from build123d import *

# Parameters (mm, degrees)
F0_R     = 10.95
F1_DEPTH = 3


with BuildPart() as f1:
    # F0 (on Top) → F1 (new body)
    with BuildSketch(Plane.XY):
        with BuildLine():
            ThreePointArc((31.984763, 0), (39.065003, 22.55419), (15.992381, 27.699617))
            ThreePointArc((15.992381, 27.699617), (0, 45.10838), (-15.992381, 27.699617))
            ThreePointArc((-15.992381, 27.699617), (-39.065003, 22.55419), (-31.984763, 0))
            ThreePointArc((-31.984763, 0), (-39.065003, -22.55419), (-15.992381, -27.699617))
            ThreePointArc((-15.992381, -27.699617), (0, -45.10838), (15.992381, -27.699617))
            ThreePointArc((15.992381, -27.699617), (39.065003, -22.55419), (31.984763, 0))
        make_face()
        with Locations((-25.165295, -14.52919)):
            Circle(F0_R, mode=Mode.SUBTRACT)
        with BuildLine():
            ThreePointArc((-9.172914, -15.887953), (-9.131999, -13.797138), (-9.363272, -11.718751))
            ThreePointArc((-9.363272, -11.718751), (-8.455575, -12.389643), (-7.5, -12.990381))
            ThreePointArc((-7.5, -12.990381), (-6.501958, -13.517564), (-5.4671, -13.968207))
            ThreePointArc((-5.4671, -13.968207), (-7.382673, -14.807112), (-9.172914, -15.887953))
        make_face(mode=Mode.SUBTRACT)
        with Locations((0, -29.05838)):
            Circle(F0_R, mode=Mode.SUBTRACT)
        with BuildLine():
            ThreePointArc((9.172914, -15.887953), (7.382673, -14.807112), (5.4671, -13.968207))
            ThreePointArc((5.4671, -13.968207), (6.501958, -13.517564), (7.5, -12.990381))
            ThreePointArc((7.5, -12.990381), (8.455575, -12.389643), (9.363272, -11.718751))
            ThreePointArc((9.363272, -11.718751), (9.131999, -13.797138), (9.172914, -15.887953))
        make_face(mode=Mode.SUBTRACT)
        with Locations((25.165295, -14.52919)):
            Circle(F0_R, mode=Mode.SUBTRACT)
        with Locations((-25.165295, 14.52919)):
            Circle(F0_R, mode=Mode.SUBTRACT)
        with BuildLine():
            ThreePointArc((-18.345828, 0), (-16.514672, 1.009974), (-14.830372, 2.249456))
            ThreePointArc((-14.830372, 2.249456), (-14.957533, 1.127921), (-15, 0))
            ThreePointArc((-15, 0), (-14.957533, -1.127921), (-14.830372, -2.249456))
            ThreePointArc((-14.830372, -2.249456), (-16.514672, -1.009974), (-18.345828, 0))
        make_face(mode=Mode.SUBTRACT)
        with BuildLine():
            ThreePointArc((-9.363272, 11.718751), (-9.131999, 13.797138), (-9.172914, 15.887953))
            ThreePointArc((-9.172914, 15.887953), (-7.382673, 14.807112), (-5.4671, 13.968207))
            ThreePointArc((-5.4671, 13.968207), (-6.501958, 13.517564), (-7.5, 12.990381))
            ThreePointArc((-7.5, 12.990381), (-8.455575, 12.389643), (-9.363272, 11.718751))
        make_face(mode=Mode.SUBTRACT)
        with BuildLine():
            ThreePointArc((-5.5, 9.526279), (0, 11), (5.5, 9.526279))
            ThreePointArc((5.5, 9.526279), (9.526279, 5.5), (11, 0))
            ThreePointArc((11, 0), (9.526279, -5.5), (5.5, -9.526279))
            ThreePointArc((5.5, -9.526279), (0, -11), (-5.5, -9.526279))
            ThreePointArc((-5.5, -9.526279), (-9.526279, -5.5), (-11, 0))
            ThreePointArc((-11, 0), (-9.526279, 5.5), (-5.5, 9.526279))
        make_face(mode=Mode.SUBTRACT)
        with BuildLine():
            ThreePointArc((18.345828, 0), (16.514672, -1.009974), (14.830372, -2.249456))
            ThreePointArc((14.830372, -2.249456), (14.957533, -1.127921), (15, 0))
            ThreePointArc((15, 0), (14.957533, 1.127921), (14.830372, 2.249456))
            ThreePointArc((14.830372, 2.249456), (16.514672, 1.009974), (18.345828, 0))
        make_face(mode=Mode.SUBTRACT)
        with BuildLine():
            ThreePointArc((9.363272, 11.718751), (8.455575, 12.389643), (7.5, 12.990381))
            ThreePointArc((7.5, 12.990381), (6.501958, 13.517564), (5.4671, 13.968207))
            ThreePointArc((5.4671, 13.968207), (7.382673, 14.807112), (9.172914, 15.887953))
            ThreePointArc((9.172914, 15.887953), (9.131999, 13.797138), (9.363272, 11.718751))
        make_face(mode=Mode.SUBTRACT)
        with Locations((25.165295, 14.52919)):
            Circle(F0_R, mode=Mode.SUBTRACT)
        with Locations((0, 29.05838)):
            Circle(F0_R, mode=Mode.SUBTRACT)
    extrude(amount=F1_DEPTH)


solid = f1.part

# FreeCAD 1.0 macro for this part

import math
import FreeCAD as App
import Part
import Sketcher

V = App.Vector

doc = App.newDocument("Part")
body = doc.addObject("PartDesign::Body", "Body")

sketch1 = doc.addObject("Sketcher::SketchObject", "Sketch")
body.addObject(sketch1)
sketch1.AttachmentSupport = (doc.XY_Plane, [""])
sketch1.MapMode = "FlatFace"
sketch1.addGeometry(Part.ArcOfCircle(Part.Circle(V(25.2, 14.5, 0), V(0, 0, 1), 16.1), math.radians(-65), math.radians(125)), False)
sketch1.addGeometry(Part.ArcOfCircle(Part.Circle(V(0, 29.1, 0), V(0, 0, 1), 16), math.radians(-5), math.radians(185)), False)
sketch1.addGeometry(Part.ArcOfCircle(Part.Circle(V(-25.2, 14.5, 0), V(0, 0, 1), 16.1), math.radians(55), math.radians(245)), False)
sketch1.addGeometry(Part.ArcOfCircle(Part.Circle(V(-25.2, -14.5, 0), V(0, 0, 1), 16.1), math.radians(115), math.radians(305)), False)
sketch1.addGeometry(Part.ArcOfCircle(Part.Circle(V(0, -29.1, 0), V(0, 0, 1), 16), math.radians(175), math.radians(365)), False)
sketch1.addGeometry(Part.ArcOfCircle(Part.Circle(V(25.2, -14.5, 0), V(0, 0, 1), 16.1), math.radians(-125), math.radians(65)), False)
sketch1.addGeometry(Part.Circle(V(-25.2, -14.5, 0), V(0, 0, 1), 10.9), False)
sketch1.addGeometry(Part.ArcOfCircle(Part.Circle(V(0, -29.1, 0), V(0, 0, 1), 16.1), math.radians(109.92), math.radians(124.86)), False)
sketch1.addGeometry(Part.ArcOfCircle(Part.Circle(V(-25.2, -14.5, 0), V(0, 0, 1), 16.1), math.radians(-4.86), math.radians(10.08)), False)
sketch1.addGeometry(Part.ArcOfCircle(Part.Circle(V(0, 0, 0), V(0, 0, 1), 15), math.radians(-128.62), math.radians(-120)), False)
sketch1.addGeometry(Part.ArcOfCircle(Part.Circle(V(0, 0, 0), V(0, 0, 1), 15), math.radians(-120), math.radians(-111.38)), False)
sketch1.addGeometry(Part.Circle(V(0, -29.1, 0), V(0, 0, 1), 10.9), False)
sketch1.addGeometry(Part.ArcOfCircle(Part.Circle(V(25.2, -14.5, 0), V(0, 0, 1), 16.1), math.radians(169.92), math.radians(184.86)), False)
sketch1.addGeometry(Part.ArcOfCircle(Part.Circle(V(0, -29.1, 0), V(0, 0, 1), 16.1), math.radians(55.14), math.radians(70.08)), False)
sketch1.addGeometry(Part.ArcOfCircle(Part.Circle(V(0, 0, 0), V(0, 0, 1), 15), math.radians(-68.62), math.radians(-60)), False)
sketch1.addGeometry(Part.ArcOfCircle(Part.Circle(V(0, 0, 0), V(0, 0, 1), 15), math.radians(-60), math.radians(-51.38)), False)
sketch1.addGeometry(Part.Circle(V(25.2, -14.5, 0), V(0, 0, 1), 10.9), False)
sketch1.addGeometry(Part.Circle(V(-25.2, 14.5, 0), V(0, 0, 1), 10.9), False)
sketch1.addGeometry(Part.ArcOfCircle(Part.Circle(V(-25.2, -14.5, 0), V(0, 0, 1), 16.1), math.radians(49.92), math.radians(64.86)), False)
sketch1.addGeometry(Part.ArcOfCircle(Part.Circle(V(-25.2, 14.5, 0), V(0, 0, 1), 16.1), math.radians(-64.86), math.radians(-49.92)), False)
sketch1.addGeometry(Part.ArcOfCircle(Part.Circle(V(0, 0, 0), V(0, 0, 1), 15), math.radians(171.38), math.radians(180)), False)
sketch1.addGeometry(Part.ArcOfCircle(Part.Circle(V(0, 0, 0), V(0, 0, 1), 15), math.radians(180), math.radians(188.62)), False)
sketch1.addGeometry(Part.ArcOfCircle(Part.Circle(V(0, 0, 0), V(0, 0, 1), 15), math.radians(120), math.radians(128.62)), False)
sketch1.addGeometry(Part.ArcOfCircle(Part.Circle(V(-25.2, 14.5, 0), V(0, 0, 1), 16.1), math.radians(-10.08), math.radians(4.86)), False)
sketch1.addGeometry(Part.ArcOfCircle(Part.Circle(V(0, 29.1, 0), V(0, 0, 1), 16.1), math.radians(-124.86), math.radians(-109.92)), False)
sketch1.addGeometry(Part.ArcOfCircle(Part.Circle(V(0, 0, 0), V(0, 0, 1), 15), math.radians(111.38), math.radians(120)), False)
sketch1.addGeometry(Part.ArcOfCircle(Part.Circle(V(0, 0, 0), V(0, 0, 1), 11), math.radians(120), math.radians(180)), False)
sketch1.addGeometry(Part.ArcOfCircle(Part.Circle(V(0, 0, 0), V(0, 0, 1), 11), math.radians(60), math.radians(120)), False)
sketch1.addGeometry(Part.ArcOfCircle(Part.Circle(V(0, 0, 0), V(0, 0, 1), 11), math.radians(0), math.radians(60)), False)
sketch1.addGeometry(Part.ArcOfCircle(Part.Circle(V(0, 0, 0), V(0, 0, 1), 11), math.radians(-60), math.radians(0)), False)
sketch1.addGeometry(Part.ArcOfCircle(Part.Circle(V(0, 0, 0), V(0, 0, 1), 11), math.radians(-120), math.radians(-60)), False)
sketch1.addGeometry(Part.ArcOfCircle(Part.Circle(V(0, 0, 0), V(0, 0, 1), 11), math.radians(-180), math.radians(-120)), False)
sketch1.addGeometry(Part.ArcOfCircle(Part.Circle(V(25.2, 14.5, 0), V(0, 0, 1), 16.1), math.radians(-130.08), math.radians(-115.14)), False)
sketch1.addGeometry(Part.ArcOfCircle(Part.Circle(V(25.2, -14.5, 0), V(0, 0, 1), 16.1), math.radians(115.14), math.radians(130.08)), False)
sketch1.addGeometry(Part.ArcOfCircle(Part.Circle(V(0, 0, 0), V(0, 0, 1), 15), math.radians(-8.62), math.radians(0)), False)
sketch1.addGeometry(Part.ArcOfCircle(Part.Circle(V(0, 0, 0), V(0, 0, 1), 15), math.radians(0), math.radians(8.62)), False)
sketch1.addGeometry(Part.ArcOfCircle(Part.Circle(V(25.2, 14.5, 0), V(0, 0, 1), 16.1), math.radians(175.14), math.radians(190.08)), False)
sketch1.addGeometry(Part.ArcOfCircle(Part.Circle(V(0, 0, 0), V(0, 0, 1), 15), math.radians(51.38), math.radians(60)), False)
sketch1.addGeometry(Part.ArcOfCircle(Part.Circle(V(0, 0, 0), V(0, 0, 1), 15), math.radians(60), math.radians(68.62)), False)
sketch1.addGeometry(Part.ArcOfCircle(Part.Circle(V(0, 29.1, 0), V(0, 0, 1), 16.1), math.radians(-70.08), math.radians(-55.14)), False)
sketch1.addGeometry(Part.Circle(V(25.2, 14.5, 0), V(0, 0, 1), 10.9), False)
sketch1.addGeometry(Part.Circle(V(0, 29.1, 0), V(0, 0, 1), 10.9), False)
sketch1.addConstraint(Sketcher.Constraint("Coincident", 0, 2, 1, 1))
sketch1.addConstraint(Sketcher.Constraint("Coincident", 1, 2, 2, 1))
sketch1.addConstraint(Sketcher.Constraint("Coincident", 2, 2, 3, 1))
sketch1.addConstraint(Sketcher.Constraint("Coincident", 3, 2, 4, 1))
sketch1.addConstraint(Sketcher.Constraint("Coincident", 4, 2, 5, 1))
sketch1.addConstraint(Sketcher.Constraint("Coincident", 5, 2, 0, 1))
sketch1.addConstraint(Sketcher.Constraint("Coincident", 7, 2, 8, 1))
sketch1.addConstraint(Sketcher.Constraint("Coincident", 8, 2, 9, 1))
sketch1.addConstraint(Sketcher.Constraint("Tangent", 9, 2, 10, 1))
sketch1.addConstraint(Sketcher.Constraint("Coincident", 10, 2, 7, 1))
sketch1.addConstraint(Sketcher.Constraint("Coincident", 12, 2, 13, 1))
sketch1.addConstraint(Sketcher.Constraint("Coincident", 13, 2, 14, 1))
sketch1.addConstraint(Sketcher.Constraint("Tangent", 14, 2, 15, 1))
sketch1.addConstraint(Sketcher.Constraint("Coincident", 15, 2, 12, 1))
sketch1.addConstraint(Sketcher.Constraint("Coincident", 18, 2, 19, 1))
sketch1.addConstraint(Sketcher.Constraint("Coincident", 19, 2, 20, 1))
sketch1.addConstraint(Sketcher.Constraint("Tangent", 20, 2, 21, 1))
sketch1.addConstraint(Sketcher.Constraint("Coincident", 21, 2, 18, 1))
sketch1.addConstraint(Sketcher.Constraint("Coincident", 22, 2, 23, 1))
sketch1.addConstraint(Sketcher.Constraint("Coincident", 23, 2, 24, 1))
sketch1.addConstraint(Sketcher.Constraint("Coincident", 24, 2, 25, 1))
sketch1.addConstraint(Sketcher.Constraint("Tangent", 25, 2, 22, 1))
sketch1.addConstraint(Sketcher.Constraint("Tangent", 26, 1, 27, 2))
sketch1.addConstraint(Sketcher.Constraint("Tangent", 27, 1, 28, 2))
sketch1.addConstraint(Sketcher.Constraint("Tangent", 28, 1, 29, 2))
sketch1.addConstraint(Sketcher.Constraint("Tangent", 29, 1, 30, 2))
sketch1.addConstraint(Sketcher.Constraint("Tangent", 30, 1, 31, 2))
sketch1.addConstraint(Sketcher.Constraint("Tangent", 31, 1, 26, 2))
sketch1.addConstraint(Sketcher.Constraint("Coincident", 32, 2, 33, 1))
sketch1.addConstraint(Sketcher.Constraint("Coincident", 33, 2, 34, 1))
sketch1.addConstraint(Sketcher.Constraint("Tangent", 34, 2, 35, 1))
sketch1.addConstraint(Sketcher.Constraint("Coincident", 35, 2, 32, 1))
sketch1.addConstraint(Sketcher.Constraint("Coincident", 36, 2, 37, 1))
sketch1.addConstraint(Sketcher.Constraint("Tangent", 37, 2, 38, 1))
sketch1.addConstraint(Sketcher.Constraint("Coincident", 38, 2, 39, 1))
sketch1.addConstraint(Sketcher.Constraint("Coincident", 39, 2, 36, 1))
sketch1.addConstraint(Sketcher.Constraint("Coincident", 10, 3, -1, 1))
sketch1.addConstraint(Sketcher.Constraint("Coincident", 14, 3, -1, 1))
sketch1.addConstraint(Sketcher.Constraint("Coincident", 25, 3, -1, 1))
sketch1.addConstraint(Sketcher.Constraint("Coincident", 26, 3, -1, 1))
sketch1.addConstraint(Sketcher.Constraint("Coincident", 28, 3, -1, 1))
sketch1.addConstraint(Sketcher.Constraint("Coincident", 38, 3, -1, 1))
sketch1.addConstraint(Sketcher.Constraint("Coincident", 6, 3, 3, 3))
sketch1.addConstraint(Sketcher.Constraint("Coincident", 7, 3, 4, 3))
sketch1.addConstraint(Sketcher.Constraint("Coincident", 11, 3, 4, 3))
sketch1.addConstraint(Sketcher.Constraint("Coincident", 13, 3, 4, 3))
sketch1.addConstraint(Sketcher.Constraint("Coincident", 16, 3, 5, 3))
sketch1.addConstraint(Sketcher.Constraint("Coincident", 17, 3, 2, 3))
sketch1.addConstraint(Sketcher.Constraint("Coincident", 24, 3, 1, 3))
sketch1.addConstraint(Sketcher.Constraint("Coincident", 39, 3, 1, 3))
sketch1.addConstraint(Sketcher.Constraint("Coincident", 40, 3, 0, 3))
sketch1.addConstraint(Sketcher.Constraint("Coincident", 41, 3, 1, 3))
sketch1.addConstraint(Sketcher.Constraint("Equal", 0, 1))
sketch1.addConstraint(Sketcher.Constraint("Equal", 1, 2))
sketch1.addConstraint(Sketcher.Constraint("Equal", 2, 3))
sketch1.addConstraint(Sketcher.Constraint("Equal", 3, 4))
sketch1.addConstraint(Sketcher.Constraint("Equal", 4, 5))
sketch1.addConstraint(Sketcher.Constraint("Equal", 6, 11))
sketch1.addConstraint(Sketcher.Constraint("Equal", 8, 12))
sketch1.addConstraint(Sketcher.Constraint("Equal", 7, 13))
sketch1.addConstraint(Sketcher.Constraint("Equal", 10, 14))
sketch1.addConstraint(Sketcher.Constraint("Equal", 9, 15))
sketch1.addConstraint(Sketcher.Constraint("Equal", 11, 16))
sketch1.addConstraint(Sketcher.Constraint("Equal", 16, 17))
sketch1.addConstraint(Sketcher.Constraint("Equal", 18, 19))
sketch1.addConstraint(Sketcher.Constraint("Equal", 20, 21))
sketch1.addConstraint(Sketcher.Constraint("Equal", 15, 22))
sketch1.addConstraint(Sketcher.Constraint("Equal", 12, 23))
sketch1.addConstraint(Sketcher.Constraint("Equal", 13, 24))
sketch1.addConstraint(Sketcher.Constraint("Equal", 14, 25))
sketch1.addConstraint(Sketcher.Constraint("Equal", 28, 29))
sketch1.addConstraint(Sketcher.Constraint("Equal", 19, 32))
sketch1.addConstraint(Sketcher.Constraint("Equal", 32, 33))
sketch1.addConstraint(Sketcher.Constraint("Equal", 21, 34))
sketch1.addConstraint(Sketcher.Constraint("Equal", 34, 35))
sketch1.addConstraint(Sketcher.Constraint("Equal", 23, 36))
sketch1.addConstraint(Sketcher.Constraint("Equal", 22, 37))
sketch1.addConstraint(Sketcher.Constraint("Equal", 25, 38))
sketch1.addConstraint(Sketcher.Constraint("Equal", 24, 39))
sketch1.addConstraint(Sketcher.Constraint("Equal", 17, 40))
sketch1.addConstraint(Sketcher.Constraint("Equal", 40, 41))
sketch1.addConstraint(Sketcher.Constraint("Symmetric", 0, 3, 3, 3, -1, 1))
sketch1.addConstraint(Sketcher.Constraint("Symmetric", 1, 3, 4, 3, -1, 1))
sketch1.addConstraint(Sketcher.Constraint("Symmetric", 2, 3, 5, 3, -1, 1))
sketch1.addConstraint(Sketcher.Constraint("Symmetric", 12, 3, 23, 3, -1, 1))
sketch1.addConstraint(Sketcher.Constraint("Symmetric", 18, 3, 32, 3, -1, 1))
sketch1.addConstraint(Sketcher.Constraint("Symmetric", 19, 3, 33, 3, -1, 1))
sketch1.addConstraint(Sketcher.Constraint("Symmetric", 20, 3, 34, 3, -1, 1))
sketch1.addConstraint(Sketcher.Constraint("Symmetric", 8, 3, 36, 3, -1, 1))
sketch1.addConstraint(Sketcher.Constraint("Symmetric", 0, 3, 2, 3, -2))
sketch1.addConstraint(Sketcher.Constraint("Symmetric", 8, 3, 12, 3, -2))
sketch1.addConstraint(Sketcher.Constraint("Symmetric", 19, 3, 32, 3, -2))
sketch1.addConstraint(Sketcher.Constraint("PointOnObject", 1, 3, -2))
sketch1.addConstraint(Sketcher.Constraint("PointOnObject", 20, 2, -1))
sketch1.addConstraint(Sketcher.Constraint("PointOnObject", 28, 1, -1))
sketch1.addConstraint(Sketcher.Constraint("PointOnObject", 31, 1, -1))
sketch1.addConstraint(Sketcher.Constraint("PointOnObject", 34, 2, -1))
sketch1.addConstraint(Sketcher.Constraint("Horizontal", 6, 3, 8, 3))
sketch1.addConstraint(Sketcher.Constraint("Horizontal", 14, 3, 21, 3))
sketch1.addConstraint(Sketcher.Constraint("Horizontal", 9, 2, 14, 2))
sketch1.addConstraint(Sketcher.Constraint("Horizontal", 26, 1, 27, 1))
sketch1.addConstraint(Sketcher.Constraint("Horizontal", 29, 1, 30, 1))
sketch1.addConstraint(Sketcher.Constraint("Horizontal", 25, 2, 37, 2))
sketch1.addConstraint(Sketcher.Constraint("Vertical", 9, 2, 25, 2))
sketch1.addConstraint(Sketcher.Constraint("Vertical", 27, 1, 29, 1))
sketch1.addConstraint(Sketcher.Constraint("Radius", 26, 11.000001))
sketch1.addConstraint(Sketcher.Constraint("Diameter", 6, 21.9))
sketch1.addConstraint(Sketcher.Constraint("Radius", 0, 16.05))
sketch1.addConstraint(Sketcher.Constraint("DistanceX", 20, 2, -1, 1, 15.0))
sketch1.addConstraint(Sketcher.Constraint("DistanceX", 9, 2, -1, 1, 7.5))
sketch1.addConstraint(Sketcher.Constraint("DistanceX", 26, 1, -1, 1, 5.5))
sketch1.addConstraint(Sketcher.Constraint("Radius", 9, 14.999892))
sketch1.addConstraint(Sketcher.Constraint("Radius", 18, 16.050061))
sketch1.addConstraint(Sketcher.Constraint("Radius", 7, 16.050003))
sketch1.addConstraint(Sketcher.Constraint("Radius", 8, 16.050043))
sketch1.addConstraint(Sketcher.Constraint("Radius", 10, 14.999994))
sketch1.addConstraint(Sketcher.Constraint("Radius", 20, 14.999926))
sketch1.addConstraint(Sketcher.Constraint("DistanceX", 10, 2, -1, 1, 5.4671))
sketch1.addConstraint(Sketcher.Constraint("DistanceY", -1, 1, 0, 3, 14.52919))
sketch1.addConstraint(Sketcher.Constraint("DistanceX", 8, 3, -1, 1, 25.165339))
sketch1.addConstraint(Sketcher.Constraint("DistanceX", 1, 2, -1, 1, 15.992381))
sketch1.addConstraint(Sketcher.Constraint("DistanceX", 18, 2, -1, 1, 18.345828))
sketch1.addConstraint(Sketcher.Constraint("DistanceX", 21, 2, -1, 1, 14.830372))
pad1 = doc.addObject("PartDesign::Pad", "Pad")
body.addObject(pad1)
pad1.Profile = sketch1
pad1.Length = 3

doc.recompute()
